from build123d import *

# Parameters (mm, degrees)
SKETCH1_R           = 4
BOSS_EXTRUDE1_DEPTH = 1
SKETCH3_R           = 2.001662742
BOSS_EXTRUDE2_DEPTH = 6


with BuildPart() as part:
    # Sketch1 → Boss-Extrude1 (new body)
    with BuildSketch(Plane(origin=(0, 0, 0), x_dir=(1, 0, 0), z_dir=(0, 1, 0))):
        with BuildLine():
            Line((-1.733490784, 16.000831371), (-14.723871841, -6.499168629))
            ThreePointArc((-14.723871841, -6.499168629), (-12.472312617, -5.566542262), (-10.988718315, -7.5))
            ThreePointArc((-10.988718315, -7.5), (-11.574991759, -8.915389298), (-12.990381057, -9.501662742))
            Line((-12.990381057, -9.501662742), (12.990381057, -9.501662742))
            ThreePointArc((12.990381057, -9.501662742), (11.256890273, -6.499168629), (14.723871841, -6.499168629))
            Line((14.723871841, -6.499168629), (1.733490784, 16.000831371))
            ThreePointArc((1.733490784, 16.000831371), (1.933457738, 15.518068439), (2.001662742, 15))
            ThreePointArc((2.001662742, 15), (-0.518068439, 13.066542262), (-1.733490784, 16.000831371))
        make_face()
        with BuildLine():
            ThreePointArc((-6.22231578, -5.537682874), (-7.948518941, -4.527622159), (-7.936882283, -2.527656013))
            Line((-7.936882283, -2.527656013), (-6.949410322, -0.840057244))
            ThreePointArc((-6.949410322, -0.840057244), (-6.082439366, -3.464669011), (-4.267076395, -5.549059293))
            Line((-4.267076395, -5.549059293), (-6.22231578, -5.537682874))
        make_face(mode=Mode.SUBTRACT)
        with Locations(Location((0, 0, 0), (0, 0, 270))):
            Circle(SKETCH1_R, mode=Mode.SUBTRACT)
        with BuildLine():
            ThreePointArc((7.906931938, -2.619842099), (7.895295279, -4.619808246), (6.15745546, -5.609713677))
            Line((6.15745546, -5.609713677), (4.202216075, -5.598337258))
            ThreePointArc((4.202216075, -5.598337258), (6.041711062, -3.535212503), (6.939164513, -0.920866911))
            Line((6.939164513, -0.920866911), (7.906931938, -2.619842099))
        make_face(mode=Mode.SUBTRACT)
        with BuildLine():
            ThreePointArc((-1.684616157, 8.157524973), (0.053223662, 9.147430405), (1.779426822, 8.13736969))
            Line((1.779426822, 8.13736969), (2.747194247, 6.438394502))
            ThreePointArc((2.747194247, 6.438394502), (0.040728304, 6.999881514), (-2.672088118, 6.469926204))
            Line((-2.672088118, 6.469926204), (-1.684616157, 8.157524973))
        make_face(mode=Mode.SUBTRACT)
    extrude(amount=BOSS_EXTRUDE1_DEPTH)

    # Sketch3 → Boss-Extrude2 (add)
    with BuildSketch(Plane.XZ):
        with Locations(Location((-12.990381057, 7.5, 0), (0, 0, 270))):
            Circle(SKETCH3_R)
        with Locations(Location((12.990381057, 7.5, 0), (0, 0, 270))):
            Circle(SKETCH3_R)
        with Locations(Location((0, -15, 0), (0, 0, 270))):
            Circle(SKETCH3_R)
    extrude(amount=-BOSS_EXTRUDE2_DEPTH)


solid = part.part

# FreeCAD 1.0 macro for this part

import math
import FreeCAD as App
import Part
import Sketcher
Q = App.Units.Quantity

doc = App.newDocument("Part")
body = doc.addObject("PartDesign::Body", "Body")

sketch1 = doc.addObject("Sketcher::SketchObject", "Sketch")
body.addObject(sketch1)
sketch1.AttachmentSupport = (doc.XZ_Plane, [""])
sketch1.MapMode = "FlatFace"
sketch1.addGeometry([
    Part.LineSegment(App.Vector(-1.733491, -16.000831, 0), App.Vector(-14.723872, 6.499169, 0)),
    Part.ArcOfCircle(Part.Circle(App.Vector(-12.990381, 7.5, 0), App.Vector(0, 0, 1), 2.001663), math.radians(-150), math.radians(0)),
    Part.ArcOfCircle(Part.Circle(App.Vector(-12.990381, 7.5, 0), App.Vector(0, 0, 1), 2.001663), math.radians(0), math.radians(90)),
    Part.LineSegment(App.Vector(-12.990381, 9.501663, 0), App.Vector(12.990381, 9.501663, 0)),
    Part.ArcOfCircle(Part.Circle(App.Vector(12.990381, 7.5, 0), App.Vector(0, 0, 1), 2.001663), math.radians(90), math.radians(330)),
    Part.LineSegment(App.Vector(14.723872, 6.499169, 0), App.Vector(1.733491, -16.000831, 0)),
    Part.ArcOfCircle(Part.Circle(App.Vector(0, -15, 0), App.Vector(0, 0, 1), 2.001663), math.radians(-30), math.radians(0)),
    Part.ArcOfCircle(Part.Circle(App.Vector(0, -15, 0), App.Vector(0, 0, 1), 2.001663), math.radians(0), math.radians(210)),
    Part.LineSegment(App.Vector(-4.267076, 5.549059, 0), App.Vector(-6.222316, 5.537683, 0)),
    Part.ArcOfCircle(Part.Circle(App.Vector(-6.210679, 3.537717, 0), App.Vector(0, 0, 1), 2), math.radians(90.333368), math.radians(210.333368)),
    Part.LineSegment(App.Vector(-7.936882, 2.527656, 0), App.Vector(-6.94941, 0.840057, 0)),
    Part.ArcOfCircle(Part.Circle(App.Vector(0, 0, 0), App.Vector(0, 0, 1), 7), math.radians(127.55931), math.radians(173.107425)),
    Part.LineSegment(App.Vector(6.939165, 0.920867, 0), App.Vector(7.906932, 2.619842, 0)),
    Part.ArcOfCircle(Part.Circle(App.Vector(6.169092, 3.609748, 0), App.Vector(0, 0, 1), 2), math.radians(-29.666632), math.radians(90.333368)),
    Part.LineSegment(App.Vector(6.157455, 5.609714, 0), App.Vector(4.202216, 5.598337, 0)),
    Part.ArcOfCircle(Part.Circle(App.Vector(0, 0, 0), App.Vector(0, 0, 1), 7), math.radians(7.55931), math.radians(53.107425)),
    Part.Circle(App.Vector(0, 0, 0), App.Vector(0, 0, 1), 4),
    Part.LineSegment(App.Vector(-2.672088, -6.469926, 0), App.Vector(-1.684616, -8.157525, 0)),
    Part.ArcOfCircle(Part.Circle(App.Vector(0.041587, -7.147464, 0), App.Vector(0, 0, 1), 2), math.radians(-149.666632), math.radians(-29.666632)),
    Part.LineSegment(App.Vector(1.779427, -8.13737, 0), App.Vector(2.747194, -6.438395, 0)),
    Part.ArcOfCircle(Part.Circle(App.Vector(0, 0, 0), App.Vector(0, 0, 1), 7), math.radians(-112.44069), math.radians(-66.892575)),
], False)
sketch1.addConstraint([
    Sketcher.Constraint("Tangent", 0, 2, 1, 1),
    Sketcher.Constraint("Tangent", 1, 2, 2, 1),
    Sketcher.Constraint("Tangent", 2, 2, 3, 1),
    Sketcher.Constraint("Tangent", 3, 2, 4, 1),
    Sketcher.Constraint("Tangent", 4, 2, 5, 1),
    Sketcher.Constraint("Tangent", 5, 2, 6, 1),
    Sketcher.Constraint("Tangent", 6, 2, 7, 1),
    Sketcher.Constraint("Tangent", 7, 2, 0, 1),
    Sketcher.Constraint("Tangent", 8, 2, 9, 1),
    Sketcher.Constraint("Tangent", 9, 2, 10, 1),
    Sketcher.Constraint("Coincident", 10, 2, 11, 2),
    Sketcher.Constraint("Coincident", 11, 1, 8, 1),
    Sketcher.Constraint("Tangent", 12, 2, 13, 1),
    Sketcher.Constraint("Tangent", 13, 2, 14, 1),
    Sketcher.Constraint("Coincident", 14, 2, 15, 2),
    Sketcher.Constraint("Coincident", 15, 1, 12, 1),
    Sketcher.Constraint("Tangent", 17, 2, 18, 1),
    Sketcher.Constraint("Tangent", 18, 2, 19, 1),
    Sketcher.Constraint("Coincident", 19, 2, 20, 2),
    Sketcher.Constraint("Coincident", 20, 1, 17, 1),
    Sketcher.Constraint("Horizontal", 3),
    Sketcher.Constraint("Coincident", 11, 3, -1, 1),
    Sketcher.Constraint("Coincident", 15, 3, -1, 1),
    Sketcher.Constraint("Coincident", 16, 3, -1, 1),
    Sketcher.Constraint("Coincident", 20, 3, -1, 1),
    Sketcher.Constraint("Equal", 1, 2),
    Sketcher.Constraint("Equal", 2, 4),
    Sketcher.Constraint("Equal", 4, 6),
    Sketcher.Constraint("Equal", 6, 7),
    Sketcher.Constraint("Equal", 9, 13),
    Sketcher.Constraint("Equal", 11, 15),
    Sketcher.Constraint("Equal", 13, 18),
    Sketcher.Constraint("Equal", 15, 20),
    Sketcher.Constraint("Symmetric", 0, 2, 4, 2, -2),
    Sketcher.Constraint("Parallel", 8, 14),
    Sketcher.Constraint("Parallel", 10, 17),
    Sketcher.Constraint("Parallel", 12, 19),
    Sketcher.Constraint("Horizontal", 4, 3, 1, 2),
    Sketcher.Constraint("Horizontal", 7, 3, 6, 2),
    Sketcher.Constraint("Equal", 8, 10),
    Sketcher.Constraint("Equal", 10, 12),
    Sketcher.Constraint("Equal", 12, 14),
    Sketcher.Constraint("Equal", 14, 17),
    Sketcher.Constraint("Equal", 17, 19),
    Sketcher.Constraint("Diameter", 16, 8.0),
    Sketcher.Constraint("Radius", 9, 2.0),
    Sketcher.Constraint("Radius", 11, 7.0),
    Sketcher.Constraint("Angle", 0, Q("120 deg")),
    Sketcher.Constraint("DistanceY", 6, 3, -1, 1, 15.0),
    Sketcher.Constraint("DistanceY", -1, 1, 1, 3, 7.5),
    Sketcher.Constraint("Radius", 1, 2.001663),
    Sketcher.Constraint("DistanceX", 1, 3, 9, 3, 6.779702),
    Sketcher.Constraint("DistanceX", 1, 3, 9, 2, 5.053499),
    Sketcher.Constraint("DistanceY", 10, 2, 9, 2, 1.687599),
    Sketcher.Constraint("DistanceX", -1, 1, 12, 2, 7.906932),
])
pad1 = doc.addObject("PartDesign::Pad", "Pad")
body.addObject(pad1)
pad1.Profile = sketch1
pad1.Length = 1
pad1.Reversed = True

sketch2 = doc.addObject("Sketcher::SketchObject", "Sketch001")
body.addObject(sketch2)
sketch2.AttachmentSupport = (doc.XZ_Plane, [""])
sketch2.MapMode = "FlatFace"
sketch2.addGeometry([
    Part.Circle(App.Vector(-12.990381, 7.5, 0), App.Vector(0, 0, 1), 2.001663),
    Part.Circle(App.Vector(12.990381, 7.5, 0), App.Vector(0, 0, 1), 2.001663),
    Part.Circle(App.Vector(0, -15, 0), App.Vector(0, 0, 1), 2.001663),
], False)
sketch2.addConstraint([
    Sketcher.Constraint("Equal", 0, 1),
    Sketcher.Constraint("Equal", 1, 2),
    Sketcher.Constraint("Symmetric", 0, 3, 1, 3, -2),
    Sketcher.Constraint("PointOnObject", 2, 3, -2),
    Sketcher.Constraint("DistanceY", 2, 3, -1, 1, 15.0),
    Sketcher.Constraint("DistanceY", -1, 1, 0, 3, 7.5),
    Sketcher.Constraint("Diameter", 0, 4.003325),
    Sketcher.Constraint("DistanceX", 0, 3, -1, 1, 12.990381),
])
pad2 = doc.addObject("PartDesign::Pad", "Pad001")
body.addObject(pad2)
pad2.Profile = sketch2
pad2.Length = 6
pad2.Reversed = True

doc.recompute()
